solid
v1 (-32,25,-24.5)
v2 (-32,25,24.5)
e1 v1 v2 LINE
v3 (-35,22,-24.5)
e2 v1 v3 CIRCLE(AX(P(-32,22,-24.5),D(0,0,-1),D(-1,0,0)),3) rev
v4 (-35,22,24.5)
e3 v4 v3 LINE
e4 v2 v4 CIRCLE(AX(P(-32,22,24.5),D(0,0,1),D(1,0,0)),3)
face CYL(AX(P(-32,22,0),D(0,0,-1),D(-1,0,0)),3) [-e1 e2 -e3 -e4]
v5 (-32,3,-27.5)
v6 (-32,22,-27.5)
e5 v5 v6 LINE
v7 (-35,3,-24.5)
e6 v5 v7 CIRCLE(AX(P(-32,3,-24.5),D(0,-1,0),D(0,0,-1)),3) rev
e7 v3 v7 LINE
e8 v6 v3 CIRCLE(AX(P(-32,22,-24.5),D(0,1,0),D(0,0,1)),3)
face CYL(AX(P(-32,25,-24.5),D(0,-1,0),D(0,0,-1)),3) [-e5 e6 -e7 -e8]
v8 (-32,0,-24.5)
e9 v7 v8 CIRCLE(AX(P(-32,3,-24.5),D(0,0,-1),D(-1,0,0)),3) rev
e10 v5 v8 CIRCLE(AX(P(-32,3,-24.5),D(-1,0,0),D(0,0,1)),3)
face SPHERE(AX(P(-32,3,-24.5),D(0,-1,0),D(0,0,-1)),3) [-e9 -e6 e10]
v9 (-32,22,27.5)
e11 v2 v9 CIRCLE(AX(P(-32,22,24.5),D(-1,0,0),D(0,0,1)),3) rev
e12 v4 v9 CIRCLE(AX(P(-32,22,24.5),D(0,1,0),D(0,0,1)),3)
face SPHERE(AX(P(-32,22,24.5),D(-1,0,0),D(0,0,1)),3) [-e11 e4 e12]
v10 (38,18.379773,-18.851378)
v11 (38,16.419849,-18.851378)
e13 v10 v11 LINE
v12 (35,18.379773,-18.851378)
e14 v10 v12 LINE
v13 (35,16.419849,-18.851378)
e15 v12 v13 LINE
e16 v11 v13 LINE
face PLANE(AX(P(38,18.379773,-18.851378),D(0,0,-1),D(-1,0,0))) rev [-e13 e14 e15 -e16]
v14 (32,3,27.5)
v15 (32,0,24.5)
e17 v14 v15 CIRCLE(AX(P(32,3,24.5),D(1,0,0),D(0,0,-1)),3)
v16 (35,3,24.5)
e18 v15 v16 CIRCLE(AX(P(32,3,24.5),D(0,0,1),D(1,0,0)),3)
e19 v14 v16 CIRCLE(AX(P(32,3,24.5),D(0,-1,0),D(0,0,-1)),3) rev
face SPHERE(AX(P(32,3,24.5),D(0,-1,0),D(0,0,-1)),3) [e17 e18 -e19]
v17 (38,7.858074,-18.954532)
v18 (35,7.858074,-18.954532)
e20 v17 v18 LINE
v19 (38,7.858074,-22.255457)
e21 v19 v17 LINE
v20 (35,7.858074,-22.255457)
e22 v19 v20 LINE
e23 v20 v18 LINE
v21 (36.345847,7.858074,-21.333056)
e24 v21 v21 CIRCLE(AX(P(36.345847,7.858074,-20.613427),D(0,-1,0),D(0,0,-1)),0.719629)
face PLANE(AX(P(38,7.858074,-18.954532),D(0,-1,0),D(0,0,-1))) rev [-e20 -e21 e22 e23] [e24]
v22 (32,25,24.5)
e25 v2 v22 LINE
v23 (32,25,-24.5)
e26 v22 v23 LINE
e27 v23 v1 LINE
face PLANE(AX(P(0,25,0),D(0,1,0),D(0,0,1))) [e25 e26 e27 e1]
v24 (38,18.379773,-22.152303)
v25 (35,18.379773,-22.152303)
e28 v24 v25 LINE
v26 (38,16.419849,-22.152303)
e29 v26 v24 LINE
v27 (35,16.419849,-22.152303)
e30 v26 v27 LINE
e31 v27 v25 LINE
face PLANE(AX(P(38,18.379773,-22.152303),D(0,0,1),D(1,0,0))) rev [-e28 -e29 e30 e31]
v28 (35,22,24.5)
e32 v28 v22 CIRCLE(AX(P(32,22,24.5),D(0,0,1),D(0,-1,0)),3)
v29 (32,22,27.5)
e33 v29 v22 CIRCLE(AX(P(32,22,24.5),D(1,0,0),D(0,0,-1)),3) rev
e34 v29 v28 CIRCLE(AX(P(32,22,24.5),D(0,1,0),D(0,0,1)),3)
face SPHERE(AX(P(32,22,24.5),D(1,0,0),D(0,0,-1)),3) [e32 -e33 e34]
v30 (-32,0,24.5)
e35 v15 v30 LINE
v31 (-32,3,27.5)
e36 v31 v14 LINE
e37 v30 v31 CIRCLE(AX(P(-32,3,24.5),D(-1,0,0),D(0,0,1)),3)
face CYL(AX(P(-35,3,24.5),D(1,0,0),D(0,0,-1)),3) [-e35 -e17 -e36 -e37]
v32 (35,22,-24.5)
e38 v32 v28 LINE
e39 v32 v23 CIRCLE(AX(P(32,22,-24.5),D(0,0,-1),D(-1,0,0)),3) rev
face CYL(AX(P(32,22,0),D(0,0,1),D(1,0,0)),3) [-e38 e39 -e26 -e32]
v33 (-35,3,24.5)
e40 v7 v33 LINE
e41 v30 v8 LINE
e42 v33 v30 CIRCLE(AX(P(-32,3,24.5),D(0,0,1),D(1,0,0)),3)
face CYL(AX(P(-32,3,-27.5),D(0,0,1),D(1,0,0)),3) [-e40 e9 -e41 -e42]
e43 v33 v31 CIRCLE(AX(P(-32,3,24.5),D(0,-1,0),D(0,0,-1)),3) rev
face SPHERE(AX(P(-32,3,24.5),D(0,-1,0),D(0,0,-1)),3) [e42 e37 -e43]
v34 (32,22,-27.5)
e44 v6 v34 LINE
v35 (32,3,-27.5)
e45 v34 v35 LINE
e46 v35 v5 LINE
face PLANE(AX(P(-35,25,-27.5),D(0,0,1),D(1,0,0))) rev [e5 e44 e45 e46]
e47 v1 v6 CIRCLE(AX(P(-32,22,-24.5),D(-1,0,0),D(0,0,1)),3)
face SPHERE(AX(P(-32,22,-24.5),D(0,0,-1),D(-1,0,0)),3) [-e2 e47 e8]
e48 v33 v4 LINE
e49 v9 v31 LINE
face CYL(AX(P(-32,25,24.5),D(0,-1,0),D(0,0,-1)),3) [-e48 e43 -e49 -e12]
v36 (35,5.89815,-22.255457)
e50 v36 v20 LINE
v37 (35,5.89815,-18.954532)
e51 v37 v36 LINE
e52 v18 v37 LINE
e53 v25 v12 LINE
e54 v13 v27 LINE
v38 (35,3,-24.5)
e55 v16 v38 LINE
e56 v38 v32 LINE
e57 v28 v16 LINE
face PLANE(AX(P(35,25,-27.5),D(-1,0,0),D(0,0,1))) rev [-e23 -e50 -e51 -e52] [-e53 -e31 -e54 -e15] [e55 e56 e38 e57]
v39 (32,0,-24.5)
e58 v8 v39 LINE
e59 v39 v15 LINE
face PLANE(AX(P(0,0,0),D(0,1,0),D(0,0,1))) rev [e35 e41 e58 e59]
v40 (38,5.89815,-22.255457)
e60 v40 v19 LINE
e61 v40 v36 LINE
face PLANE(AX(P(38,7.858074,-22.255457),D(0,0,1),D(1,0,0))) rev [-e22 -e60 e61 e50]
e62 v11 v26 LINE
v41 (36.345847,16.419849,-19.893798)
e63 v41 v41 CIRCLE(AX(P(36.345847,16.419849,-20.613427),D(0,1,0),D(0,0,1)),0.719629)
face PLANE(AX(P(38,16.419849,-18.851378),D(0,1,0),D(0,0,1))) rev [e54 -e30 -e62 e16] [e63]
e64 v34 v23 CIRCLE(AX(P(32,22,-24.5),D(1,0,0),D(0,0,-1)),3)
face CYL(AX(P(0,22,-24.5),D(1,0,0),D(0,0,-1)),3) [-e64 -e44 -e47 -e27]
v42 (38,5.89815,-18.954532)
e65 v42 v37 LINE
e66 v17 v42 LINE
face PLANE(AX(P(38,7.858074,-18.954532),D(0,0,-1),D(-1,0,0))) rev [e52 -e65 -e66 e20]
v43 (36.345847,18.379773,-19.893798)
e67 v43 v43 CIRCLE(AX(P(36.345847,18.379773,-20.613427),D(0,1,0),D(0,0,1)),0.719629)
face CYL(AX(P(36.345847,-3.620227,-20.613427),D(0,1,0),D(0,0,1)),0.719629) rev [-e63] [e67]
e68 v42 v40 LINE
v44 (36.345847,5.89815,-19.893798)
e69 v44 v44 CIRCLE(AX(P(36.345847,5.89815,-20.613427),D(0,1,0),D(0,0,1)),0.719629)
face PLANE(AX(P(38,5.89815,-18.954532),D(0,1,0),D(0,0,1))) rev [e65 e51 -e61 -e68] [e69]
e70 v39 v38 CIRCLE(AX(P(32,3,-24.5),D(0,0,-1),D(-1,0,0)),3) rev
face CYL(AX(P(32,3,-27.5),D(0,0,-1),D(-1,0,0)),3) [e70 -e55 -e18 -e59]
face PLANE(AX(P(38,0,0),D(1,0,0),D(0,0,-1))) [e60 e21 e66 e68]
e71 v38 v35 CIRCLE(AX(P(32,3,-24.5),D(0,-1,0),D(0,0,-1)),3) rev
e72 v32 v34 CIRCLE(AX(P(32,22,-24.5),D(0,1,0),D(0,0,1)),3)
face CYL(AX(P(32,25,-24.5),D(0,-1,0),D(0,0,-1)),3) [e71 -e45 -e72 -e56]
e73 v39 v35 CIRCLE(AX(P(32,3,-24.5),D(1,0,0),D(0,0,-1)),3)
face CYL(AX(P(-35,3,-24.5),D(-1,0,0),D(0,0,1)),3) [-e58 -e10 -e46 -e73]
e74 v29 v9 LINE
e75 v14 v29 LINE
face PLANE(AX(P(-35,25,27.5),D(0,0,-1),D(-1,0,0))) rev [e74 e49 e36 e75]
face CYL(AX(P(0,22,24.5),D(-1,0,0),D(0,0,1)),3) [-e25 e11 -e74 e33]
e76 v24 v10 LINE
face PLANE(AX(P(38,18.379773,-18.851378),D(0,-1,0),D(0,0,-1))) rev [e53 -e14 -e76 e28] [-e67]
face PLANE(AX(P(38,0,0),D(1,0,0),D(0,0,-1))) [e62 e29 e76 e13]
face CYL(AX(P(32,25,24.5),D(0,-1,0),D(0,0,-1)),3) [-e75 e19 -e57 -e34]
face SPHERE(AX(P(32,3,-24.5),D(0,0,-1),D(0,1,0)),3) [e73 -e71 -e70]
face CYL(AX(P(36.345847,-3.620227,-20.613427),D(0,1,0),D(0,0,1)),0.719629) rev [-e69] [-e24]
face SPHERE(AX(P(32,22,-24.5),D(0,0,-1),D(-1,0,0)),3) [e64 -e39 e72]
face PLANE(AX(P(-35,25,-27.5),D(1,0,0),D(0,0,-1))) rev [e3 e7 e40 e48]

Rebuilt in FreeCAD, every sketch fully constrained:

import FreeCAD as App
import Part
import Sketcher

V = App.Vector


def add_polygon(sketch, points):
    """Adds a closed chain of lines whose ends are joined by coincident constraints."""
    first, n = sketch.GeometryCount, len(points)
    for a, b in zip(points, points[1:] + points[:1]):
        sketch.addGeometry(Part.LineSegment(App.Vector(*a, 0), App.Vector(*b, 0)), False)
    for i in range(n):
        sketch.addConstraint(Sketcher.Constraint("Coincident", first + i, 2, first + (i + 1) % n, 1))

doc = App.newDocument("Part")
body = doc.addObject("PartDesign::Body", "Body")

sketch1 = doc.addObject("Sketcher::SketchObject", "Sketch")
body.addObject(sketch1)
sketch1.AttachmentSupport = (doc.XZ_Plane, [""])
sketch1.MapMode = "FlatFace"
add_polygon(sketch1, [(-35, -28), (-35, 28), (35, 28), (35, -28)])
sketch1.addConstraint(Sketcher.Constraint("Vertical", 0))
sketch1.addConstraint(Sketcher.Constraint("Horizontal", 1))
sketch1.addConstraint(Sketcher.Constraint("Vertical", 2))
sketch1.addConstraint(Sketcher.Constraint("Horizontal", 3))
sketch1.addConstraint(Sketcher.Constraint("Symmetric", 0, 2, 2, 2, -1, 1))
sketch1.addConstraint(Sketcher.Constraint("DistanceX", 1, 1, 1, 2, 70.0))
sketch1.addConstraint(Sketcher.Constraint("DistanceY", 0, 1, 0, 2, 55.0))
pad1 = doc.addObject("PartDesign::Pad", "Pad")
body.addObject(pad1)
pad1.Profile = sketch1
pad1.Length = 25
pad1.Reversed = True
doc.recompute()

fillet = doc.addObject("PartDesign::Fillet", "Fillet")
body.addObject(fillet)
fillet.Base = (pad1, ["Edge1"])
fillet.UseAllEdges = True
fillet.Radius = 3

sketch2 = doc.addObject("Sketcher::SketchObject", "Sketch001")
body.addObject(sketch2)
sketch2.AttachmentSupport = (doc.YZ_Plane, [""])
sketch2.MapMode = "FlatFace"
sketch2.AttachmentOffset = App.Placement(V(0, 0, 35), App.Rotation())
add_polygon(sketch2, [(18.4, -18.9), (16.4, -18.9), (16.4, -22.2), (18.4, -22.2)])
add_polygon(sketch2, [(7.9, -19), (5.9, -19), (5.9, -22.3), (7.9, -22.3)])
sketch2.addConstraint(Sketcher.Constraint("Horizontal", 0))
sketch2.addConstraint(Sketcher.Constraint("Vertical", 1))
sketch2.addConstraint(Sketcher.Constraint("Horizontal", 2))
sketch2.addConstraint(Sketcher.Constraint("Vertical", 3))
sketch2.addConstraint(Sketcher.Constraint("Horizontal", 4))
sketch2.addConstraint(Sketcher.Constraint("Vertical", 5))
sketch2.addConstraint(Sketcher.Constraint("Horizontal", 6))
sketch2.addConstraint(Sketcher.Constraint("Vertical", 7))
sketch2.addConstraint(Sketcher.Constraint("Equal", 2, 4))
sketch2.addConstraint(Sketcher.Constraint("Equal", 3, 5))
sketch2.addConstraint(Sketcher.Constraint("DistanceX", 4, 2, 0, 2, 10.521699))
sketch2.addConstraint(Sketcher.Constraint("DistanceX", 0, 2, 0, 1, 1.959924))
sketch2.addConstraint(Sketcher.Constraint("DistanceY", 1, 2, 1, 1, 3.300925))
sketch2.addConstraint(Sketcher.Constraint("DistanceX", -1, 1, 0, 2, 16.419849))
sketch2.addConstraint(Sketcher.Constraint("DistanceY", 4, 2, -1, 1, 18.954532))
sketch2.addConstraint(Sketcher.Constraint("DistanceY", 1, 2, 4, 2, 3.197771))
pad2 = doc.addObject("PartDesign::Pad", "Pad001")
body.addObject(pad2)
pad2.Profile = sketch2
pad2.Length = 3

sketch3 = doc.addObject("Sketcher::SketchObject", "Sketch002")
body.addObject(sketch3)
sketch3.AttachmentSupport = (doc.XZ_Plane, [""])
sketch3.MapMode = "FlatFace"
sketch3.AttachmentOffset = App.Placement(V(0, 0, -18.379773), App.Rotation())
sketch3.addGeometry(Part.Circle(V(36.3, -20.6, 0), V(0, 0, 1), 0.7), False)
sketch3.addConstraint(Sketcher.Constraint("Diameter", 0, 1.439258))
sketch3.addConstraint(Sketcher.Constraint("DistanceX", -1, 1, 0, 3, 36.345847))
sketch3.addConstraint(Sketcher.Constraint("DistanceY", 0, 3, -1, 1, 20.613427))
pocket1 = doc.addObject("PartDesign::Pocket", "Pocket")
body.addObject(pocket1)
pocket1.Profile = sketch3
pocket1.Length = 22
pocket1.Reversed = True

doc.recompute()
